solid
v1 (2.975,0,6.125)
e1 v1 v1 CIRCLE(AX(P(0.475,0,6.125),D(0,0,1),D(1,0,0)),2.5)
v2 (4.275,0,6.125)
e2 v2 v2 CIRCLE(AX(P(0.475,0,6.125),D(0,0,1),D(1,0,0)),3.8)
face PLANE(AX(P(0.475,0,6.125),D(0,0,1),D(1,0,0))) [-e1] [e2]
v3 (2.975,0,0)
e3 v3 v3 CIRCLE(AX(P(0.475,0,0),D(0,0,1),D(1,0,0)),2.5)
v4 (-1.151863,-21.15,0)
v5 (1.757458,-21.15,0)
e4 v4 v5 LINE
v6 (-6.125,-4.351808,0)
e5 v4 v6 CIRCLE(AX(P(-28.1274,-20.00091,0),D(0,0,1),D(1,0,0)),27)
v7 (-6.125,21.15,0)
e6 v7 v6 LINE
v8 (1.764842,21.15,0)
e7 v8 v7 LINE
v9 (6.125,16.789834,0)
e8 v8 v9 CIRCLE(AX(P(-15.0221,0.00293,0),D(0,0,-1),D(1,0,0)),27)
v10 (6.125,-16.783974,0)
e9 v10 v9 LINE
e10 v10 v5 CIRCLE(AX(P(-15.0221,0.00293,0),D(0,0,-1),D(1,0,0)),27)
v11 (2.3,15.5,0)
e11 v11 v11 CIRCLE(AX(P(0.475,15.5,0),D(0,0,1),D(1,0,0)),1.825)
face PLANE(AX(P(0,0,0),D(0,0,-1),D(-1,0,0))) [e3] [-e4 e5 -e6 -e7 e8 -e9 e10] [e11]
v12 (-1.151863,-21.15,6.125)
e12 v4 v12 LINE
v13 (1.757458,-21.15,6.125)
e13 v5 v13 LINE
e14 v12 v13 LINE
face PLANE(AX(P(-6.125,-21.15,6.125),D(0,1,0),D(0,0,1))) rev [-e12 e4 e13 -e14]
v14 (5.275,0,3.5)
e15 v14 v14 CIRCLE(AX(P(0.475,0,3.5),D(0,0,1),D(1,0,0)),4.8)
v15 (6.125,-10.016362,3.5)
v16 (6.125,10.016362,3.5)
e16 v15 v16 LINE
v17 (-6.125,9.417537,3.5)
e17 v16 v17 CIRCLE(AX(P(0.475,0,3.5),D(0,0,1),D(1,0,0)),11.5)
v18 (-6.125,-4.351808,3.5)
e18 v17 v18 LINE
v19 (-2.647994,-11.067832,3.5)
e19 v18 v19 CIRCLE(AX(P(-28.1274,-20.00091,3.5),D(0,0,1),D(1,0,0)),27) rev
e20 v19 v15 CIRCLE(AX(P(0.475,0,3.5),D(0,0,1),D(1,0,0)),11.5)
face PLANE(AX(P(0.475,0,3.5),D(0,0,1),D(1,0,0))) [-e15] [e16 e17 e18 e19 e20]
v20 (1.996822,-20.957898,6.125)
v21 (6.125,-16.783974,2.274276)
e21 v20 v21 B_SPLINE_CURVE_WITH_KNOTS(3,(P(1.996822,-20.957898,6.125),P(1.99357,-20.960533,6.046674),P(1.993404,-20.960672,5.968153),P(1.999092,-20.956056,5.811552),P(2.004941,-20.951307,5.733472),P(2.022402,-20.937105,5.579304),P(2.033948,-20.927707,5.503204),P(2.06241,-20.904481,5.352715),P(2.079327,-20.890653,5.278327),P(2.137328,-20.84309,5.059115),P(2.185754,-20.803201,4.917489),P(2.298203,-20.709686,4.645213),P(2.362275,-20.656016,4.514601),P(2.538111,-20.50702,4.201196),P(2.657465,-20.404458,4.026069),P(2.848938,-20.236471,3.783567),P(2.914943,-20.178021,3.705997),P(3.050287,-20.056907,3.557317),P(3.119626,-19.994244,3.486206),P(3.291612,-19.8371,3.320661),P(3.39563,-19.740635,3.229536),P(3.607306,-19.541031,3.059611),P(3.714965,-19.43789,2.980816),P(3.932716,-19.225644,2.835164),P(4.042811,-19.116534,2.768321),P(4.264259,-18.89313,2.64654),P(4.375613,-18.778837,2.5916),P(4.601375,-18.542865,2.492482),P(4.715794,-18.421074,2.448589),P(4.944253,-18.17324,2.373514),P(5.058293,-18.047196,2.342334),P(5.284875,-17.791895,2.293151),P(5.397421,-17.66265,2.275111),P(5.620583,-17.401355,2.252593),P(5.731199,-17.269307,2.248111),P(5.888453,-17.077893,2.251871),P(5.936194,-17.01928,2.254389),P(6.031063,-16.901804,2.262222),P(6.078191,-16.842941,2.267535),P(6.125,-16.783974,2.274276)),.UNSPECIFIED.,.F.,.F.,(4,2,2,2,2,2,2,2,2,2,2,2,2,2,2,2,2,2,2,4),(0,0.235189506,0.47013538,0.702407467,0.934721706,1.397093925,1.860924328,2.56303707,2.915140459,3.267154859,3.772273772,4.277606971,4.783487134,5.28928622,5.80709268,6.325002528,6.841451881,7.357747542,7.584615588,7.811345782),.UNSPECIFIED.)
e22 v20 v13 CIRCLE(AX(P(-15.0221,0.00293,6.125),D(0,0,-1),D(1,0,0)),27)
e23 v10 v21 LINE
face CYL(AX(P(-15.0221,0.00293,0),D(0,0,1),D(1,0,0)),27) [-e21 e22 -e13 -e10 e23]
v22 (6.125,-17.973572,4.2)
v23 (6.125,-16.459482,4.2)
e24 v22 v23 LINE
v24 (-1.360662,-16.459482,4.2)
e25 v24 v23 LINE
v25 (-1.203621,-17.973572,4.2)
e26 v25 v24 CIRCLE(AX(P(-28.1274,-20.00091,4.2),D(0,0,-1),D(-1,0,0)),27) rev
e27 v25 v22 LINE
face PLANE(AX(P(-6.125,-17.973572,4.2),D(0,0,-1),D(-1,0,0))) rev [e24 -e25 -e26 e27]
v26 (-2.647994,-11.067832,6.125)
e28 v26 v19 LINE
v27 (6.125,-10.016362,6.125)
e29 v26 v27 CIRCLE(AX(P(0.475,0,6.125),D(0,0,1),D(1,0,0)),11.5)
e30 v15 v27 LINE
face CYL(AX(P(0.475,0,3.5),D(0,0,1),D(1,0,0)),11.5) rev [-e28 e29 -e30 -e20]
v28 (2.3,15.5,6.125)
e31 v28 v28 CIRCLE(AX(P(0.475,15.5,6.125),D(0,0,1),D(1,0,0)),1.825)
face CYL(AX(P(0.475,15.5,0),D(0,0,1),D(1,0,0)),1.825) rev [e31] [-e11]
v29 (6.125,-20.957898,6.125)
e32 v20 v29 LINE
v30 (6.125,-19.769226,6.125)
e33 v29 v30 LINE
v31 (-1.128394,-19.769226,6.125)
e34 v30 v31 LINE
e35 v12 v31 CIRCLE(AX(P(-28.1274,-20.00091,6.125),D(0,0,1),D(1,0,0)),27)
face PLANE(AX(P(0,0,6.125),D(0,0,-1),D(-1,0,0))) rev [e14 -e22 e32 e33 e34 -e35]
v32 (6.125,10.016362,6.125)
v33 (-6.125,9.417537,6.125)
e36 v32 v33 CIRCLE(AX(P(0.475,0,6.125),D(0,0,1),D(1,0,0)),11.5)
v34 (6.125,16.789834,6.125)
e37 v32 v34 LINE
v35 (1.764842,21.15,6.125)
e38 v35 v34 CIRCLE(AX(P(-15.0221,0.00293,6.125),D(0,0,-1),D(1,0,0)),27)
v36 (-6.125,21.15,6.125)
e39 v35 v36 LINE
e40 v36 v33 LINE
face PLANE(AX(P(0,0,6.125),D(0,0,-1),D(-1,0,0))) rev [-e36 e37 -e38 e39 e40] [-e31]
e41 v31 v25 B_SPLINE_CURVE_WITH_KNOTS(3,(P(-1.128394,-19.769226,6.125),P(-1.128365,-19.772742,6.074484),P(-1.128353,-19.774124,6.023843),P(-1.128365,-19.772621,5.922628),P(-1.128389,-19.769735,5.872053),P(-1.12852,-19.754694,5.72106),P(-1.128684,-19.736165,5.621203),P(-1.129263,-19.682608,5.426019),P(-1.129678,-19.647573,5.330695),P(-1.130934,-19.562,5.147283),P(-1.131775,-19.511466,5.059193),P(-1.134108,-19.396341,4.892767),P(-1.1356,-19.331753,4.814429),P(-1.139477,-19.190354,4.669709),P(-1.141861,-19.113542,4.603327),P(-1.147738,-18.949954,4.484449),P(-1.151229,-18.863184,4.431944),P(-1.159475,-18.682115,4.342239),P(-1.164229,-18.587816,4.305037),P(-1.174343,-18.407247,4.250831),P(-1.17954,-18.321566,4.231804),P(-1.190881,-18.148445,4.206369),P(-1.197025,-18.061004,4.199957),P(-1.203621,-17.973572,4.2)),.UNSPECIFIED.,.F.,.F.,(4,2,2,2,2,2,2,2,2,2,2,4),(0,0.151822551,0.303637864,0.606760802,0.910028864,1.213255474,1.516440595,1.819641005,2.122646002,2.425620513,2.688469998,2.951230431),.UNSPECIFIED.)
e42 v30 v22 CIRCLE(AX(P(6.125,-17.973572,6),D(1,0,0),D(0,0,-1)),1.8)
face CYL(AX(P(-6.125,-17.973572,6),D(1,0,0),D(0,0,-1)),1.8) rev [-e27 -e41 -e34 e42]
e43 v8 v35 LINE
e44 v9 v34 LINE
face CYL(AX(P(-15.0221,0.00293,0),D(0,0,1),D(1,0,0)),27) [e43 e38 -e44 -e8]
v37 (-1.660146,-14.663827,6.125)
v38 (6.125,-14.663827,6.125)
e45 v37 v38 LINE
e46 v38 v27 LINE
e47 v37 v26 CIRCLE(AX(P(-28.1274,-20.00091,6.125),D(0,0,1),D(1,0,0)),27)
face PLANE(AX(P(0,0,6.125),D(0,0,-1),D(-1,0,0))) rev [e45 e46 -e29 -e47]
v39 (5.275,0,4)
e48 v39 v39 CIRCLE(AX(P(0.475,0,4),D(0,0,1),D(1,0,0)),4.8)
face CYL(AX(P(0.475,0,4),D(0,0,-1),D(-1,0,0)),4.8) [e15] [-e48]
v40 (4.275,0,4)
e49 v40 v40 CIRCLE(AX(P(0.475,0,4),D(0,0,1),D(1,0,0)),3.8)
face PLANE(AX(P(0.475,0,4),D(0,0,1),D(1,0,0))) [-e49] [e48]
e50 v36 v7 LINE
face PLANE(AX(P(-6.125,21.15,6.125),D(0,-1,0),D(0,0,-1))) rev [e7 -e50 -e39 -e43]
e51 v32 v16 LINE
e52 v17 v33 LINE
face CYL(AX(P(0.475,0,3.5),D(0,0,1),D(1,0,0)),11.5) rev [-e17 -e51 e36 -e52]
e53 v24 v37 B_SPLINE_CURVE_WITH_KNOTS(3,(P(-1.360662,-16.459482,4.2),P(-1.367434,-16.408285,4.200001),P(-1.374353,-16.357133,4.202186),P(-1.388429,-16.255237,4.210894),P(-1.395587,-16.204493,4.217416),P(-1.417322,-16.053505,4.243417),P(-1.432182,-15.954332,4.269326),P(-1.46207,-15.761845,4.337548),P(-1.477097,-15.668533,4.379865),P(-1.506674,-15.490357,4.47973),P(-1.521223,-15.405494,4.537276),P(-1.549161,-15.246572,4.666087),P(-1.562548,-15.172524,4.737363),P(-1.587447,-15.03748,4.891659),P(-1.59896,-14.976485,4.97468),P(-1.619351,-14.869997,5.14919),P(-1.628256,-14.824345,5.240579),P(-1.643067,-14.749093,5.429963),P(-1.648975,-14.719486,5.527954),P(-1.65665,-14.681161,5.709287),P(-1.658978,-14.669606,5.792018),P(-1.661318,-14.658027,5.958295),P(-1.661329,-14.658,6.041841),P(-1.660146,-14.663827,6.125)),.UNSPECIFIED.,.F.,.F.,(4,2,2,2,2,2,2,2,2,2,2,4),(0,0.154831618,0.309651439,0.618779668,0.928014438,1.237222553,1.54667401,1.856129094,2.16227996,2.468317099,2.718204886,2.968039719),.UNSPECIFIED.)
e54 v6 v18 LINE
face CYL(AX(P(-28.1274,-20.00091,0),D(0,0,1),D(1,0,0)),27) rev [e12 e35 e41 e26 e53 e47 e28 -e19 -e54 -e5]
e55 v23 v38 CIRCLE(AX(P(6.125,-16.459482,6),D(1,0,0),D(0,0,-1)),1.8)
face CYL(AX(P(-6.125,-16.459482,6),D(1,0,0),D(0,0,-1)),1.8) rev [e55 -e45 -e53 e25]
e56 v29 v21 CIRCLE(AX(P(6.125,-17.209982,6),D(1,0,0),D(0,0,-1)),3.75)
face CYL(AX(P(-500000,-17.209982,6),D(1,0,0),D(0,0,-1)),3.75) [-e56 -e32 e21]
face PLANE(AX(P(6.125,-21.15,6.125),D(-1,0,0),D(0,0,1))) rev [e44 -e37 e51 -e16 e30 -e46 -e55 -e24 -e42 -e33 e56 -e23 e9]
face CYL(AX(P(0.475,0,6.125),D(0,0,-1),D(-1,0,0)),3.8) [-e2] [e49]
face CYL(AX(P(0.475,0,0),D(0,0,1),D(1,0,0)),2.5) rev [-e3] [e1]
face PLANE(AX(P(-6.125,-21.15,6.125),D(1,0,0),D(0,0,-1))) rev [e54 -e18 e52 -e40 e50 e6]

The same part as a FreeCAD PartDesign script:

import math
import FreeCAD as App
import Part
import Sketcher
Q = App.Units.Quantity


def add_polygon(sketch, points):
    """Adds a closed chain of lines whose ends are joined by coincident constraints."""
    first, n = sketch.GeometryCount, len(points)
    for a, b in zip(points, points[1:] + points[:1]):
        sketch.addGeometry(Part.LineSegment(App.Vector(*a, 0), App.Vector(*b, 0)), False)
    for i in range(n):
        sketch.addConstraint(Sketcher.Constraint("Coincident", first + i, 2, first + (i + 1) % n, 1))

doc = App.newDocument("Part")
body = doc.addObject("PartDesign::Body", "Body")

# Sketch on XY plane
sketch1 = doc.addObject("Sketcher::SketchObject", "Sketch")
body.addObject(sketch1)
sketch1.AttachmentSupport = (doc.XY_Plane, [""])
sketch1.MapMode = "FlatFace"
add_polygon(sketch1, [(-6.125, 21.15), (-6.125, -21.15), (6.125, -21.15), (6.125, 21.15)])  # lines 0-3
sketch1.addConstraint(Sketcher.Constraint("Vertical", 0))
sketch1.addConstraint(Sketcher.Constraint("Horizontal", 1))
sketch1.addConstraint(Sketcher.Constraint("Vertical", 2))
sketch1.addConstraint(Sketcher.Constraint("Horizontal", 3))
sketch1.addConstraint(Sketcher.Constraint("Symmetric", 0, 2, 2, 2, -1, 1))
sketch1.addConstraint(Sketcher.Constraint("DistanceY", 0, 2, 0, 1, Q("42.3 mm")))
sketch1.addConstraint(Sketcher.Constraint("DistanceX", 1, 1, 1, 2, Q("12.25 mm")))
pad1 = doc.addObject("PartDesign::Pad", "Pad")
body.addObject(pad1)
pad1.Profile = sketch1
pad1.Length = 6.125

# Sketch on XY plane
sketch2 = doc.addObject("Sketcher::SketchObject", "Sketch001")
body.addObject(sketch2)
sketch2.AttachmentSupport = (doc.XY_Plane, [""])
sketch2.MapMode = "FlatFace"
sketch2.AttachmentOffset = App.Placement(App.Vector(0, 0, 6.125), App.Rotation())
sketch2.addGeometry(Part.Circle(App.Vector(0.475, 15.5, 0), App.Vector(0, 0, 1), 1.825), False)
sketch2.addGeometry(Part.Circle(App.Vector(0.475, 0, 0), App.Vector(0, 0, 1), 2.5), False)
sketch2.addConstraint(Sketcher.Constraint("PointOnObject", 1, 3, -1))
sketch2.addConstraint(Sketcher.Constraint("Vertical", 0, 3, 1, 3))
sketch2.addConstraint(Sketcher.Constraint("Diameter", 1, Q("5 mm")))
sketch2.addConstraint(Sketcher.Constraint("Diameter", 0, Q("3.65 mm")))
sketch2.addConstraint(Sketcher.Constraint("DistanceY", -1, 1, 0, 3, Q("15.5 mm")))
sketch2.addConstraint(Sketcher.Constraint("DistanceX", -1, 1, 0, 3, Q("0.475 mm")))
pocket1 = doc.addObject("PartDesign::Pocket", "Pocket")
body.addObject(pocket1)
pocket1.Profile = sketch2
pocket1.Type = "ThroughAll"

# Sketch on XY plane
sketch3 = doc.addObject("Sketcher::SketchObject", "Sketch002")
body.addObject(sketch3)
sketch3.AttachmentSupport = (doc.XY_Plane, [""])
sketch3.MapMode = "FlatFace"
sketch3.AttachmentOffset = App.Placement(App.Vector(0, 0, 6.125), App.Rotation())
sketch3.addGeometry(Part.LineSegment(App.Vector(-6.125, -21.15, 0), App.Vector(-1.151863, -21.15, 0)), False)
sketch3.addGeometry(Part.ArcOfCircle(Part.Circle(App.Vector(-28.1274, -20.00091, 0), App.Vector(0, 0, 1), 27), math.radians(-2.439181), math.radians(35.422159)), False)
sketch3.addGeometry(Part.LineSegment(App.Vector(-6.125, -4.351808, 0), App.Vector(-6.125, -21.15, 0)), False)
sketch3.addGeometry(Part.LineSegment(App.Vector(6.125, 21.15, 0), App.Vector(1.764842, 21.15, 0)), False)
sketch3.addGeometry(Part.ArcOfCircle(Part.Circle(App.Vector(-15.0221, 0.00293, 0), App.Vector(0, 0, 1), 27), math.radians(38.443105), math.radians(51.556792)), False)
sketch3.addGeometry(Part.LineSegment(App.Vector(6.125, 16.789834, 0), App.Vector(6.125, 21.15, 0)), False)
sketch3.addGeometry(Part.LineSegment(App.Vector(1.757458, -21.15, 0), App.Vector(6.125, -21.15, 0)), False)
sketch3.addGeometry(Part.LineSegment(App.Vector(6.125, -21.15, 0), App.Vector(6.125, -16.783974, 0)), False)
sketch3.addGeometry(Part.ArcOfCircle(Part.Circle(App.Vector(-15.0221, 0.00293, 0), App.Vector(0, 0, 1), 27), math.radians(-51.576797), math.radians(-38.443105)), False)
sketch3.addConstraint(Sketcher.Constraint("Coincident", 0, 2, 1, 1))
sketch3.addConstraint(Sketcher.Constraint("Coincident", 1, 2, 2, 1))
sketch3.addConstraint(Sketcher.Constraint("Coincident", 2, 2, 0, 1))
sketch3.addConstraint(Sketcher.Constraint("Coincident", 3, 2, 4, 2))
sketch3.addConstraint(Sketcher.Constraint("Coincident", 4, 1, 5, 1))
sketch3.addConstraint(Sketcher.Constraint("Coincident", 5, 2, 3, 1))
sketch3.addConstraint(Sketcher.Constraint("Coincident", 6, 2, 7, 1))
sketch3.addConstraint(Sketcher.Constraint("Coincident", 7, 2, 8, 2))
sketch3.addConstraint(Sketcher.Constraint("Coincident", 8, 1, 6, 1))
sketch3.addConstraint(Sketcher.Constraint("Horizontal", 0))
sketch3.addConstraint(Sketcher.Constraint("Vertical", 2))
sketch3.addConstraint(Sketcher.Constraint("Horizontal", 3))
sketch3.addConstraint(Sketcher.Constraint("Vertical", 5))
sketch3.addConstraint(Sketcher.Constraint("Horizontal", 6))
sketch3.addConstraint(Sketcher.Constraint("Vertical", 7))
sketch3.addConstraint(Sketcher.Constraint("Coincident", 8, 3, 4, 3))
sketch3.addConstraint(Sketcher.Constraint("Equal", 1, 4))
sketch3.addConstraint(Sketcher.Constraint("Equal", 4, 8))
sketch3.addConstraint(Sketcher.Constraint("Symmetric", 2, 2, 5, 2, -1, 1))
sketch3.addConstraint(Sketcher.Constraint("Symmetric", 2, 2, 6, 2, -2))
sketch3.addConstraint(Sketcher.Constraint("Radius", 1, Q("27 mm")))
sketch3.addConstraint(Sketcher.Constraint("DistanceY", 0, 2, 3, 2, Q("42.3 mm")))
sketch3.addConstraint(Sketcher.Constraint("DistanceX", 1, 2, 4, 1, Q("12.25 mm")))
sketch3.addConstraint(Sketcher.Constraint("DistanceX", 1, 3, -1, 1, Q("28.1274 mm")))
sketch3.addConstraint(Sketcher.Constraint("DistanceX", 4, 3, -1, 1, Q("15.0221 mm")))
sketch3.addConstraint(Sketcher.Constraint("DistanceX", 0, 1, 0, 2, Q("4.973137 mm")))
sketch3.addConstraint(Sketcher.Constraint("DistanceX", 3, 2, 3, 1, Q("4.360158 mm")))
pocket2 = doc.addObject("PartDesign::Pocket", "Pocket001")
body.addObject(pocket2)
pocket2.Profile = sketch3
pocket2.Type = "ThroughAll"

# Sketch on XY plane
sketch4 = doc.addObject("Sketcher::SketchObject", "Sketch003")
body.addObject(sketch4)
sketch4.AttachmentSupport = (doc.XY_Plane, [""])
sketch4.MapMode = "FlatFace"
sketch4.AttachmentOffset = App.Placement(App.Vector(0, 0, 6.125), App.Rotation())
sketch4.addGeometry(Part.Circle(App.Vector(0.475, 0, 0), App.Vector(0, 0, 1), 11.5), False)
sketch4.addConstraint(Sketcher.Constraint("PointOnObject", 0, 3, -1))
sketch4.addConstraint(Sketcher.Constraint("Diameter", 0, Q("23 mm")))
sketch4.addConstraint(Sketcher.Constraint("DistanceX", -1, 1, 0, 3, Q("0.475 mm")))
pocket3 = doc.addObject("PartDesign::Pocket", "Pocket002")
body.addObject(pocket3)
pocket3.Profile = sketch4
pocket3.Length = 2.625

# Sketch on XY plane
sketch5 = doc.addObject("Sketcher::SketchObject", "Sketch004")
body.addObject(sketch5)
sketch5.AttachmentSupport = (doc.XY_Plane, [""])
sketch5.MapMode = "FlatFace"
sketch5.AttachmentOffset = App.Placement(App.Vector(0, 0, 4), App.Rotation())
sketch5.addGeometry(Part.Circle(App.Vector(0.475, 0, 0), App.Vector(0, 0, 1), 4.8), False)
sketch5.addGeometry(Part.Circle(App.Vector(0.475, 0, 0), App.Vector(0, 0, 1), 2.5), False)
sketch5.addConstraint(Sketcher.Constraint("Coincident", 1, 3, 0, 3))
sketch5.addConstraint(Sketcher.Constraint("PointOnObject", 0, 3, -1))
sketch5.addConstraint(Sketcher.Constraint("Diameter", 1, Q("5 mm")))
sketch5.addConstraint(Sketcher.Constraint("Diameter", 0, Q("9.6 mm")))
sketch5.addConstraint(Sketcher.Constraint("DistanceX", -1, 1, 0, 3, Q("0.475 mm")))
pad2 = doc.addObject("PartDesign::Pad", "Pad001")
body.addObject(pad2)
pad2.Profile = sketch5
pad2.Length = 0.5
pad2.Reversed = True

# Sketch on XY plane
sketch6 = doc.addObject("Sketcher::SketchObject", "Sketch005")
body.addObject(sketch6)
sketch6.AttachmentSupport = (doc.XY_Plane, [""])
sketch6.MapMode = "FlatFace"
sketch6.AttachmentOffset = App.Placement(App.Vector(0, 0, 6.125), App.Rotation())
sketch6.addGeometry(Part.Circle(App.Vector(0.475, 0, 0), App.Vector(0, 0, 1), 3.8), False)
sketch6.addGeometry(Part.Circle(App.Vector(0.475, 0, 0), App.Vector(0, 0, 1), 2.5), False)
sketch6.addConstraint(Sketcher.Constraint("Coincident", 1, 3, 0, 3))
sketch6.addConstraint(Sketcher.Constraint("PointOnObject", 0, 3, -1))
sketch6.addConstraint(Sketcher.Constraint("Diameter", 1, Q("5 mm")))
sketch6.addConstraint(Sketcher.Constraint("Diameter", 0, Q("7.6 mm")))
sketch6.addConstraint(Sketcher.Constraint("DistanceX", -1, 1, 0, 3, Q("0.475 mm")))
pad3 = doc.addObject("PartDesign::Pad", "Pad002")
body.addObject(pad3)
pad3.Profile = sketch6
pad3.Length = 2.125
pad3.Reversed = True

# Sketch on YZ plane
sketch7 = doc.addObject("Sketcher::SketchObject", "Sketch006")
body.addObject(sketch7)
sketch7.AttachmentSupport = (doc.YZ_Plane, [""])
sketch7.MapMode = "FlatFace"
sketch7.AttachmentOffset = App.Placement(App.Vector(0, 0, 6.125), App.Rotation())
sketch7.addGeometry(Part.LineSegment(App.Vector(-13.462066, 6.125, 0), App.Vector(-20.957898, 6.125, 0)), False)
sketch7.addGeometry(Part.ArcOfCircle(Part.Circle(App.Vector(-17.209982, 6, 0), App.Vector(0, 0, 1), 3.75), math.radians(178.089787), math.radians(361.910213)), False)
sketch7.addConstraint(Sketcher.Constraint("Coincident", 0, 1, 1, 2))
sketch7.addConstraint(Sketcher.Constraint("Coincident", 1, 1, 0, 2))
sketch7.addConstraint(Sketcher.Constraint("Horizontal", 0))
sketch7.addConstraint(Sketcher.Constraint("Radius", 1, Q("3.75 mm")))
sketch7.addConstraint(Sketcher.Constraint("DistanceY", -1, 1, 1, 3, Q("6 mm")))
sketch7.addConstraint(Sketcher.Constraint("DistanceY", -1, 1, 0, 1, Q("6.125 mm")))
sketch7.addConstraint(Sketcher.Constraint("DistanceX", 1, 3, -1, 1, Q("17.209982 mm")))
pad4 = doc.addObject("PartDesign::Pad", "Pad003")
body.addObject(pad4)
pad4.Profile = sketch7
pad4.Length = 4.128178
pad4.Reversed = True

# Sketch on YZ plane
sketch8 = doc.addObject("Sketcher::SketchObject", "Sketch007")
body.addObject(sketch8)
sketch8.AttachmentSupport = (doc.YZ_Plane, [""])
sketch8.MapMode = "FlatFace"
sketch8.AttachmentOffset = App.Placement(App.Vector(0, 0, 6.125), App.Rotation())
sketch8.addGeometry(Part.LineSegment(App.Vector(-16.459482, 7.8, 0), App.Vector(-17.973572, 7.8, 0)), False)
sketch8.addGeometry(Part.ArcOfCircle(Part.Circle(App.Vector(-17.973572, 6, 0), App.Vector(0, 0, 1), 1.8), math.radians(90), math.radians(270)), False)
sketch8.addGeometry(Part.LineSegment(App.Vector(-17.973572, 4.2, 0), App.Vector(-16.459482, 4.2, 0)), False)
sketch8.addGeometry(Part.ArcOfCircle(Part.Circle(App.Vector(-16.459482, 6, 0), App.Vector(0, 0, 1), 1.8), math.radians(-90), math.radians(90)), False)
sketch8.addConstraint(Sketcher.Constraint("Tangent", 0, 2, 1, 1))
sketch8.addConstraint(Sketcher.Constraint("Tangent", 1, 2, 2, 1))
sketch8.addConstraint(Sketcher.Constraint("Tangent", 2, 2, 3, 1))
sketch8.addConstraint(Sketcher.Constraint("Tangent", 3, 2, 0, 1))
sketch8.addConstraint(Sketcher.Constraint("Horizontal", 0))
sketch8.addConstraint(Sketcher.Constraint("Horizontal", 2))
sketch8.addConstraint(Sketcher.Constraint("Radius", 1, Q("1.8 mm")))
sketch8.addConstraint(Sketcher.Constraint("DistanceY", -1, 1, 1, 3, Q("6 mm")))
sketch8.addConstraint(Sketcher.Constraint("DistanceX", 0, 2, 0, 1, Q("1.51409 mm")))
sketch8.addConstraint(Sketcher.Constraint("DistanceX", 1, 3, -1, 1, Q("17.973572 mm")))
pocket4 = doc.addObject("PartDesign::Pocket", "Pocket003")
body.addObject(pocket4)
pocket4.Profile = sketch8
pocket4.Type = "ThroughAll"

doc.recompute()
